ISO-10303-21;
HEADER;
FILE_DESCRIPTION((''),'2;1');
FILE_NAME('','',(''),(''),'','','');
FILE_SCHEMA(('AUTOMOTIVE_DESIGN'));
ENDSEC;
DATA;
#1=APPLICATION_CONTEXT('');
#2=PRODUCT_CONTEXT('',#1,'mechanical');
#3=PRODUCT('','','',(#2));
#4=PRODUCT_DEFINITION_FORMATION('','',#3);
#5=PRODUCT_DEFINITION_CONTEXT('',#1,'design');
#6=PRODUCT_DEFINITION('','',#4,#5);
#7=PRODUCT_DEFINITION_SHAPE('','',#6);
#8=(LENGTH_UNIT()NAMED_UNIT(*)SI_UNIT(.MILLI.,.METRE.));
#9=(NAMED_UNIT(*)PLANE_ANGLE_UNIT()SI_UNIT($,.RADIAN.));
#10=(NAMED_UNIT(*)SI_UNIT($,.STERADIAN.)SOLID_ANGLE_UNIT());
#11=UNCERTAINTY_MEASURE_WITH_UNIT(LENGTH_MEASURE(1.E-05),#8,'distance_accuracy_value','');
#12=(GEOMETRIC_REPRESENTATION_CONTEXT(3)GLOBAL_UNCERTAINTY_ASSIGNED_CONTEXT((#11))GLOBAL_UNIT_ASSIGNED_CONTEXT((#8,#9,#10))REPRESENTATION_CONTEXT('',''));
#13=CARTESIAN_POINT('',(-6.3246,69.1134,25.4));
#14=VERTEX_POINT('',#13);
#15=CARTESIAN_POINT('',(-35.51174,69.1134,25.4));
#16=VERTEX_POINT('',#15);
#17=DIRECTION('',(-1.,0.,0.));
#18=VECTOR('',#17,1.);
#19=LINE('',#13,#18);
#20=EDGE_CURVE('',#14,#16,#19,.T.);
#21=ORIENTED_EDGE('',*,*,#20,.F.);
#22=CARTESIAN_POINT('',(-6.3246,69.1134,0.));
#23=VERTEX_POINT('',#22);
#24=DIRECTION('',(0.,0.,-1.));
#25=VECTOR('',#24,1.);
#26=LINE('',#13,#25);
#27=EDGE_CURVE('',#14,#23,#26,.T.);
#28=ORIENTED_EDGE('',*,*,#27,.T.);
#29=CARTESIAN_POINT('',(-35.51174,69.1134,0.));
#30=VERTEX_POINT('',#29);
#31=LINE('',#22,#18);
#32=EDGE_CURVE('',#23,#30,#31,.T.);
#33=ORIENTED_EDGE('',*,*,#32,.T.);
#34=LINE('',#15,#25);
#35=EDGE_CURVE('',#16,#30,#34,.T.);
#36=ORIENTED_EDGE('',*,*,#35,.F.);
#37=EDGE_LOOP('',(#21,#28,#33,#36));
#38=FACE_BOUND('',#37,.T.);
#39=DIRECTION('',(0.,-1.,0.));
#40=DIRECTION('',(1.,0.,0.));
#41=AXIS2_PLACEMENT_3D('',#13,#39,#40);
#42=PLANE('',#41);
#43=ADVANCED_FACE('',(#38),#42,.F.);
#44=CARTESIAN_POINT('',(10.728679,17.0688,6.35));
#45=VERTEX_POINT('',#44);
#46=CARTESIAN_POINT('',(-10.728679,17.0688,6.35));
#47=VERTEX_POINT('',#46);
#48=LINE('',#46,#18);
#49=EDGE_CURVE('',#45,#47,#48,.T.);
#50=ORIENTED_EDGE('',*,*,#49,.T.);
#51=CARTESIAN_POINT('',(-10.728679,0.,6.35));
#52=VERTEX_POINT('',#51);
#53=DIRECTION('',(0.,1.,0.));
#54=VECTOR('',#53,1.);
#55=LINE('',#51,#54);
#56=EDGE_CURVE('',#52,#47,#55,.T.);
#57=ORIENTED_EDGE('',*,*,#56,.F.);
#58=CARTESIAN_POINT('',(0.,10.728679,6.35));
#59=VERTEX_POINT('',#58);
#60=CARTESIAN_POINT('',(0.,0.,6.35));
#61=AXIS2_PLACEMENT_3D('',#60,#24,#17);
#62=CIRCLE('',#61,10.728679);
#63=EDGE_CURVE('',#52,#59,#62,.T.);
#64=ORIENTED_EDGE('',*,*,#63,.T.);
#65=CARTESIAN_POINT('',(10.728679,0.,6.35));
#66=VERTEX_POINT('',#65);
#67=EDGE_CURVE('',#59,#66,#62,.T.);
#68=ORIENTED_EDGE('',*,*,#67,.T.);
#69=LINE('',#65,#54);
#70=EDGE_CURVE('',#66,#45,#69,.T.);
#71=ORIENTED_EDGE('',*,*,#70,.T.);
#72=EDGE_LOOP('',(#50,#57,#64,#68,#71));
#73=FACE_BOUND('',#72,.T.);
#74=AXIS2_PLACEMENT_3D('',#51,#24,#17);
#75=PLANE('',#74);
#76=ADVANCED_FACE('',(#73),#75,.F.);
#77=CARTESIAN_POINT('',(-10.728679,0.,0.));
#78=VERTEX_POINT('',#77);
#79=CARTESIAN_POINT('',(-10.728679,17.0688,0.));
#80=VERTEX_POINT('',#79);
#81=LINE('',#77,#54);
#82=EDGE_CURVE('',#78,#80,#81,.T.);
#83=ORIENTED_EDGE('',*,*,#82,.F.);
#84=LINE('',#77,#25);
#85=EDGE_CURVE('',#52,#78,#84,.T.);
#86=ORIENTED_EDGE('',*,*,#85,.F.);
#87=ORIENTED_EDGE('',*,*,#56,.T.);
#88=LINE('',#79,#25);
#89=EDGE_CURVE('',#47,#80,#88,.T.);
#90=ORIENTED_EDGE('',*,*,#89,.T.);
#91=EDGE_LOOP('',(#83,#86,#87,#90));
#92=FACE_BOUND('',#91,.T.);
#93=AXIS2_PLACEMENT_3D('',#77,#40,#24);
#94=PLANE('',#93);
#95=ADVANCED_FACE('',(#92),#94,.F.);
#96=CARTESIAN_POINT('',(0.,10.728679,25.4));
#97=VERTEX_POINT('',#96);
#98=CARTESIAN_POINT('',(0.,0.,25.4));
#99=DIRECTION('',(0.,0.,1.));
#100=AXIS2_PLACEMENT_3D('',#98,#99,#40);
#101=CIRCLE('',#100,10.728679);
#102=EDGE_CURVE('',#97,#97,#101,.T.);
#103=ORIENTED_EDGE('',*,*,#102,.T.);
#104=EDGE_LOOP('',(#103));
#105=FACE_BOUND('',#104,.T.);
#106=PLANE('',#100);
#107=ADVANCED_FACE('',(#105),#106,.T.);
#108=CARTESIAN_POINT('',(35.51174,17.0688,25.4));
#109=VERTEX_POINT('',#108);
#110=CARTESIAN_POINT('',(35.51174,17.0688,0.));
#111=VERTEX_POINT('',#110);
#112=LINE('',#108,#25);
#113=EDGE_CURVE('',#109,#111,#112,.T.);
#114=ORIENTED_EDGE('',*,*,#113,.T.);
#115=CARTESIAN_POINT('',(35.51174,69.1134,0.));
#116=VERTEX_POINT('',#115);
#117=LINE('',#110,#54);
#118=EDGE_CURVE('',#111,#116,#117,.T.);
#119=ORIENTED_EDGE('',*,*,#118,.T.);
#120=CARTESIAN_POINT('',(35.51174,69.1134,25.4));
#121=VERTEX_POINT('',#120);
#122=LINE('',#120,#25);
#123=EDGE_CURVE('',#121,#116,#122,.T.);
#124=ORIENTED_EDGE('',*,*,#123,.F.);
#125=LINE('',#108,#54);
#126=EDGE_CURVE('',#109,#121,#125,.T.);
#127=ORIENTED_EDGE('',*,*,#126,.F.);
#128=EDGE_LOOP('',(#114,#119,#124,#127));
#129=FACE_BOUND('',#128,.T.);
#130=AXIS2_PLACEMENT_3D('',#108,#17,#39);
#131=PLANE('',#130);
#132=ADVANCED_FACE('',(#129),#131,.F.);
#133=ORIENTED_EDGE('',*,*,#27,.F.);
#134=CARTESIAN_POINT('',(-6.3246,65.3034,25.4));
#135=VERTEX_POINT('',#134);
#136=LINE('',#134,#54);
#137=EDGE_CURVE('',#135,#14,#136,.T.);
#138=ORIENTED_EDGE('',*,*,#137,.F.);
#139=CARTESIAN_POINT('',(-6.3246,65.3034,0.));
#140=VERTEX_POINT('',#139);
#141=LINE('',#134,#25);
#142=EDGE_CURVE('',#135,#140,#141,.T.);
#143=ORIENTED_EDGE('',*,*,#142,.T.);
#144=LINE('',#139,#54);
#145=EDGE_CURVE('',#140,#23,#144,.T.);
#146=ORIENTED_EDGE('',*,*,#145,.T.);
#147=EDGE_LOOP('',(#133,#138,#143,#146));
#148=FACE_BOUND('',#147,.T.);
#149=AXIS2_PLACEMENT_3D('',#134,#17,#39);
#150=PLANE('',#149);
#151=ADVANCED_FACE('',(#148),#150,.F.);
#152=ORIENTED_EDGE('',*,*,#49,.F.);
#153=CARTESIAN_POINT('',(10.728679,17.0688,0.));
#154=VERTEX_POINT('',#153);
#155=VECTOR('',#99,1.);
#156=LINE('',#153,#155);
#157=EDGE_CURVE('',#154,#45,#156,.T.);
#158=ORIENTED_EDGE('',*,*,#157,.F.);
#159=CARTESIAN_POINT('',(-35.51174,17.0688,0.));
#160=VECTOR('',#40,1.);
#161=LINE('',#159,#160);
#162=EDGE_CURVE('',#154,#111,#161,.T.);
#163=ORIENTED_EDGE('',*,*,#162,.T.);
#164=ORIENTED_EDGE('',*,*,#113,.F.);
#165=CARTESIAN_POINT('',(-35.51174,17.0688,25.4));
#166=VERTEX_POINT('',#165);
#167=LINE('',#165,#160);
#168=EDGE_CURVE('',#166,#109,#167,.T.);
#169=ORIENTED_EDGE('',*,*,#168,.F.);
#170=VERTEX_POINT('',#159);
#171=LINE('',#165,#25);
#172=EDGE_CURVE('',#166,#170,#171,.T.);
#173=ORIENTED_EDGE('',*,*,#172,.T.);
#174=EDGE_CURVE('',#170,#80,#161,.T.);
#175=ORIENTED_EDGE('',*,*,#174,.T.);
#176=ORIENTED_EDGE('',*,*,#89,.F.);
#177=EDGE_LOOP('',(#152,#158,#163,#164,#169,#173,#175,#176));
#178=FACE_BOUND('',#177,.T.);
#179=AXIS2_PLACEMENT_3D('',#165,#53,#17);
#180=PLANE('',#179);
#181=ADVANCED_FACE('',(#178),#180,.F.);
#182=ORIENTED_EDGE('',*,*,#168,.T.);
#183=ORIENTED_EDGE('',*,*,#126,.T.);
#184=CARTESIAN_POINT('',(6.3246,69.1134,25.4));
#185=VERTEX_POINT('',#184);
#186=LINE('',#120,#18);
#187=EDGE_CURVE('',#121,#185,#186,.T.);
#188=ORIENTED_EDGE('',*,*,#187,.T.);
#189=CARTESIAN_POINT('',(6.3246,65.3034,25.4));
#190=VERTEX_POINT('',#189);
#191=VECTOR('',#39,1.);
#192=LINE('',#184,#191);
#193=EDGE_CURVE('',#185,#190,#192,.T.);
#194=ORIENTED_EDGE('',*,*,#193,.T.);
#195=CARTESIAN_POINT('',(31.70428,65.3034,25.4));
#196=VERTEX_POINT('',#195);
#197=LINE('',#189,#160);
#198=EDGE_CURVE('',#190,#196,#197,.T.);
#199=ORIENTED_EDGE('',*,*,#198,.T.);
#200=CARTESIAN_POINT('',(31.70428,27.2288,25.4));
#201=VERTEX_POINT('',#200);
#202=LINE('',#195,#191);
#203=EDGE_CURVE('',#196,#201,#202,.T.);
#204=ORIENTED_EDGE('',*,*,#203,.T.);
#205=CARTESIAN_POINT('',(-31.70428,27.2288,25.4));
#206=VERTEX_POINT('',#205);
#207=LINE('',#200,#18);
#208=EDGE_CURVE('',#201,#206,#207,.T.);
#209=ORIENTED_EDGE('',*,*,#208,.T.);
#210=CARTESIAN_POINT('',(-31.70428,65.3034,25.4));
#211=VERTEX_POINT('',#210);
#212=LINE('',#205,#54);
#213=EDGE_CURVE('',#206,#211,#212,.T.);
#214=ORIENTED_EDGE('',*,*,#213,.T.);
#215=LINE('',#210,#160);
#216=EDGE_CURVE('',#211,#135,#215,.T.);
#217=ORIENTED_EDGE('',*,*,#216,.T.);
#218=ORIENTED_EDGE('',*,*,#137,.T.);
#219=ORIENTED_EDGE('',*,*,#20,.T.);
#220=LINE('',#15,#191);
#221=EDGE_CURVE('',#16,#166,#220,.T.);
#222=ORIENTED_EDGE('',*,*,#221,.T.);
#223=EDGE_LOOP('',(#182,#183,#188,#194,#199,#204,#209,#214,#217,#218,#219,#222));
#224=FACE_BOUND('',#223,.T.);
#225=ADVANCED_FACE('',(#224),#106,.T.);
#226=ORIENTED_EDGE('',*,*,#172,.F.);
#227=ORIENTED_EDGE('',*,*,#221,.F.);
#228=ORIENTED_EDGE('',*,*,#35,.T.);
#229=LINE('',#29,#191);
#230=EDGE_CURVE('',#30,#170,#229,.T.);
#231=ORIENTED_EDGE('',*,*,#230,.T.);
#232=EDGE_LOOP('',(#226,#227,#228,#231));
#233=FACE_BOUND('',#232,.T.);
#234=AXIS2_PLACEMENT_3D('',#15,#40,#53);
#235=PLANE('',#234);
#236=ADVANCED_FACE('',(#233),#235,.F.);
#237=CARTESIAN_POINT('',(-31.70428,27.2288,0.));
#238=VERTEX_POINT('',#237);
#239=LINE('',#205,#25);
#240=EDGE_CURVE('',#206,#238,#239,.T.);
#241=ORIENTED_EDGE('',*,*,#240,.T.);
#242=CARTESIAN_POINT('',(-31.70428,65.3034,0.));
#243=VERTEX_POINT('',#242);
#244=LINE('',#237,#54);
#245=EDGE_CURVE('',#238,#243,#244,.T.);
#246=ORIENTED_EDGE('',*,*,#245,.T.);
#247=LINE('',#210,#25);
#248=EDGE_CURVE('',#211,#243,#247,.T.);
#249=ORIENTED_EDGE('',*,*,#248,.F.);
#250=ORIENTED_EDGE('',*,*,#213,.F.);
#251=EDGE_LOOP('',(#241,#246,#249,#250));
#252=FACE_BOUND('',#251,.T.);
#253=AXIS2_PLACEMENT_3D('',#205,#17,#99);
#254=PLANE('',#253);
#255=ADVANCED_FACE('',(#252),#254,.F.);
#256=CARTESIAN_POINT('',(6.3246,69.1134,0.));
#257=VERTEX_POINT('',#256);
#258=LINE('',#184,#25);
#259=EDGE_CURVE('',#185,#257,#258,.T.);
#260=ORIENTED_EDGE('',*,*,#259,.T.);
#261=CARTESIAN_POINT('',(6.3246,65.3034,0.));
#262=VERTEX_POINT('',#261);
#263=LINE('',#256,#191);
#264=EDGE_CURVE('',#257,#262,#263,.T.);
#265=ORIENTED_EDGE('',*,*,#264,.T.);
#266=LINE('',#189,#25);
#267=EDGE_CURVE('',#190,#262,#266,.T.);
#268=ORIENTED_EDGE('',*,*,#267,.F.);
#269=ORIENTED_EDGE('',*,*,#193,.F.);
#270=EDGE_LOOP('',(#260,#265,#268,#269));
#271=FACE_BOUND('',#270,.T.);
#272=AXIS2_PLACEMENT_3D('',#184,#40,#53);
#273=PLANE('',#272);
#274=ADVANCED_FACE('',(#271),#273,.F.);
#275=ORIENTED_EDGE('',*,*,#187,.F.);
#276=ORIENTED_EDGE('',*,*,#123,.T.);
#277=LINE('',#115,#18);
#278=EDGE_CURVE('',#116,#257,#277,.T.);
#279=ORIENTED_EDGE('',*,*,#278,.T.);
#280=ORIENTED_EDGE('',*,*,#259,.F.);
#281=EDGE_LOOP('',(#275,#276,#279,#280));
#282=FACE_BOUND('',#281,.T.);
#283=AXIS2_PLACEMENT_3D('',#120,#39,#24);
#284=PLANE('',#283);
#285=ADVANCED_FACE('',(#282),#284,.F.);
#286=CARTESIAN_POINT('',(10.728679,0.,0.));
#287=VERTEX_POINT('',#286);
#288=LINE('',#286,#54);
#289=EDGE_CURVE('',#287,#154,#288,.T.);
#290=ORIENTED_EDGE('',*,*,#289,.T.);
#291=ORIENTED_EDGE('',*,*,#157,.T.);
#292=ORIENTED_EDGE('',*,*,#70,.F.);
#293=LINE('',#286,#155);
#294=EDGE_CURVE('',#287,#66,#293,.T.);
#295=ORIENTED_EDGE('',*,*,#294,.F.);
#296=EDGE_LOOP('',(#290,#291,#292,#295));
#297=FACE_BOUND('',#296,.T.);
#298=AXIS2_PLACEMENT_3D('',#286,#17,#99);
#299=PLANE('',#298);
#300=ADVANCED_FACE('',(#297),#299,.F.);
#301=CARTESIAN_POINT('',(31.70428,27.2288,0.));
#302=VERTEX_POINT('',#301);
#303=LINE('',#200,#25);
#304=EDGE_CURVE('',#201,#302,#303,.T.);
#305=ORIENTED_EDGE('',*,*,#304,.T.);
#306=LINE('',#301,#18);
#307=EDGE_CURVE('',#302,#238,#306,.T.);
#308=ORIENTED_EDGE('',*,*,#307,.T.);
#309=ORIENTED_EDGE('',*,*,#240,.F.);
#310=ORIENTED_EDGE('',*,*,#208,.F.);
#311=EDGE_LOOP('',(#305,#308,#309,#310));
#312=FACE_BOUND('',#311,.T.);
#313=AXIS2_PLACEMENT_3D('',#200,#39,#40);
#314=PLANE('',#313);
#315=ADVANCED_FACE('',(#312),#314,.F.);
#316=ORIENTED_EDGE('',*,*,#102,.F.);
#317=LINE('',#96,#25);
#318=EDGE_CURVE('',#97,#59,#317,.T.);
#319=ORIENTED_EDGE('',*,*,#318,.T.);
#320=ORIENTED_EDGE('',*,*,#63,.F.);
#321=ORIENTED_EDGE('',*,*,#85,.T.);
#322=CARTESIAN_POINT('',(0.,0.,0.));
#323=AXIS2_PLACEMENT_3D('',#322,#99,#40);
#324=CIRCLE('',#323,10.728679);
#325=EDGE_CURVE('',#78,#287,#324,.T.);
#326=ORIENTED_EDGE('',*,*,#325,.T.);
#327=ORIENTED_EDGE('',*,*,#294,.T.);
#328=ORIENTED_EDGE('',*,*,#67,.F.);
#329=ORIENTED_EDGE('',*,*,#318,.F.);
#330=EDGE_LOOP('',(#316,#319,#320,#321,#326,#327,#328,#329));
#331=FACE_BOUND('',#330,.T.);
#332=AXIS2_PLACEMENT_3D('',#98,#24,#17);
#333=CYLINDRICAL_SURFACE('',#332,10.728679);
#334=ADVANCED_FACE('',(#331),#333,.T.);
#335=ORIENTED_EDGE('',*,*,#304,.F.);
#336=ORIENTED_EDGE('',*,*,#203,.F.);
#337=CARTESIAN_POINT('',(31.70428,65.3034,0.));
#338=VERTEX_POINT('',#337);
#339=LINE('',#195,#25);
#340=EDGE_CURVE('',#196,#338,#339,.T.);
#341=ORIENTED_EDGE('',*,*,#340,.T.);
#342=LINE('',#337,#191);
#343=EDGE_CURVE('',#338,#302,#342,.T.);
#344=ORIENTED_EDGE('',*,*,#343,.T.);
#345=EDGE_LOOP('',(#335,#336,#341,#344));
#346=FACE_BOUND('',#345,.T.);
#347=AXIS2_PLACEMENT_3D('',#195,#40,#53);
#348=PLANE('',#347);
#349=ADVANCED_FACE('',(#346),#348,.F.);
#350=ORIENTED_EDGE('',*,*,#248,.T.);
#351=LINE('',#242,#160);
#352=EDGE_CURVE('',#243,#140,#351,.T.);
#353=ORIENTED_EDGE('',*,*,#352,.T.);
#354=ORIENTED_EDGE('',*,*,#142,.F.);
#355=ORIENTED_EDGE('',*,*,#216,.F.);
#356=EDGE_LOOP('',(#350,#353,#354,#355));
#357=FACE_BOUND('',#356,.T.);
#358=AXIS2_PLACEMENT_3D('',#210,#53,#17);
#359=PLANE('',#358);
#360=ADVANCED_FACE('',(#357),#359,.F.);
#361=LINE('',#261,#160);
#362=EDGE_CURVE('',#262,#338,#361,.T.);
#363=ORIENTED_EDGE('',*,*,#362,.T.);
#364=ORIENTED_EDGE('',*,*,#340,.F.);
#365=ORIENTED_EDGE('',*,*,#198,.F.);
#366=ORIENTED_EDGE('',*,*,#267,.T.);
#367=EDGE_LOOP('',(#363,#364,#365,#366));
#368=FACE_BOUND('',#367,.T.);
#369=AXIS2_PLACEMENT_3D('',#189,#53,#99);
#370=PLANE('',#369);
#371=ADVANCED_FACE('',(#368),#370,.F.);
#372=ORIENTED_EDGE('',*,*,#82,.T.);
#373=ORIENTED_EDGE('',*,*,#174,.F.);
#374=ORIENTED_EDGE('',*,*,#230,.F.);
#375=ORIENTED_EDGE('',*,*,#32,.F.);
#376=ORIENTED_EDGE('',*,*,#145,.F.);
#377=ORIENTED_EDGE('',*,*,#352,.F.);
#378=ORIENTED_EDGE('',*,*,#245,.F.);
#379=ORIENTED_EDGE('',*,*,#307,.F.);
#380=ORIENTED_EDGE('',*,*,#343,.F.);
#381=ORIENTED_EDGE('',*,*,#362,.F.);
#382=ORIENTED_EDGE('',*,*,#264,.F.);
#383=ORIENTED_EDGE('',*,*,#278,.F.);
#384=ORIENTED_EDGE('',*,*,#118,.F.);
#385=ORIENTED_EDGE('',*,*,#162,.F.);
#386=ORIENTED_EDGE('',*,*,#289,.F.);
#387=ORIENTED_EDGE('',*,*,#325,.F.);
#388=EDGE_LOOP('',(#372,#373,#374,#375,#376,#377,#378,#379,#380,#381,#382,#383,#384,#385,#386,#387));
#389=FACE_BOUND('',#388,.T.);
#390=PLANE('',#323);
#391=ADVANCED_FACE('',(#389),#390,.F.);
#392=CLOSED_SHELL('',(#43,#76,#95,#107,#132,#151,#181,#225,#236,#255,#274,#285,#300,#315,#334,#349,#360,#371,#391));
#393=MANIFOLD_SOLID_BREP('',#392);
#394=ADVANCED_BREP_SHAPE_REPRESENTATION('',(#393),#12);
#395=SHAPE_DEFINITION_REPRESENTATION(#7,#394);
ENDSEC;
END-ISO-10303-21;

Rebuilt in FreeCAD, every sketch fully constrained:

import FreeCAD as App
import Part
import Sketcher
from FreeCAD import Vector
Q = App.Units.Quantity

doc = App.newDocument("Part")
body = doc.addObject("PartDesign::Body", "Body")

# Sketch on XY plane
sketch1 = doc.addObject("Sketcher::SketchObject", "Sketch")
body.addObject(sketch1)
sketch1.AttachmentSupport = (doc.XY_Plane, [""])
sketch1.MapMode = "FlatFace"
sketch1.addGeometry(Part.Circle(Vector(0, 0, 0), Vector(0, 0, 1), 10.728679), False)
sketch1.addConstraint([
    Sketcher.Constraint("Coincident", 0, 3, -1, 1),
    Sketcher.Constraint("Diameter", 0, Q("21.457358 mm")),
])
pad1 = doc.addObject("PartDesign::Pad", "Pad")
body.addObject(pad1)
pad1.Profile = sketch1
pad1.Length = Q("1 in")
body2 = doc.addObject("PartDesign::Body", "Body001")

# Sketch on XY plane
sketch2 = doc.addObject("Sketcher::SketchObject", "Sketch001")
body2.addObject(sketch2)
sketch2.AttachmentSupport = (doc.getObject("XY_Plane001"), [""])
sketch2.MapMode = "FlatFace"
sketch2.addGeometry([
    Part.LineSegment(Vector(-35.51174, 17.0688, 0), Vector(35.51174, 17.0688, 0)),  # 0
    Part.LineSegment(Vector(35.51174, 17.0688, 0), Vector(35.51174, 69.1134, 0)),  # 1
    Part.LineSegment(Vector(35.51174, 69.1134, 0), Vector(6.3246, 69.1134, 0)),  # 2
    Part.LineSegment(Vector(6.3246, 69.1134, 0), Vector(6.3246, 65.3034, 0)),  # 3
    Part.LineSegment(Vector(6.3246, 65.3034, 0), Vector(31.70428, 65.3034, 0)),  # 4
    Part.LineSegment(Vector(31.70428, 65.3034, 0), Vector(31.70428, 27.2288, 0)),  # 5
    Part.LineSegment(Vector(31.70428, 27.2288, 0), Vector(-31.70428, 27.2288, 0)),  # 6
    Part.LineSegment(Vector(-31.70428, 27.2288, 0), Vector(-31.70428, 65.3034, 0)),  # 7
    Part.LineSegment(Vector(-31.70428, 65.3034, 0), Vector(-6.3246, 65.3034, 0)),  # 8
    Part.LineSegment(Vector(-6.3246, 65.3034, 0), Vector(-6.3246, 69.1134, 0)),  # 9
    Part.LineSegment(Vector(-6.3246, 69.1134, 0), Vector(-35.51174, 69.1134, 0)),  # 10
    Part.LineSegment(Vector(-35.51174, 69.1134, 0), Vector(-35.51174, 17.0688, 0)),  # 11
], False)
sketch2.addConstraint([
    Sketcher.Constraint("Coincident", 0, 2, 1, 1),
    Sketcher.Constraint("Coincident", 1, 2, 2, 1),
    Sketcher.Constraint("Coincident", 2, 2, 3, 1),
    Sketcher.Constraint("Coincident", 3, 2, 4, 1),
    Sketcher.Constraint("Coincident", 4, 2, 5, 1),
    Sketcher.Constraint("Coincident", 5, 2, 6, 1),
    Sketcher.Constraint("Coincident", 6, 2, 7, 1),
    Sketcher.Constraint("Coincident", 7, 2, 8, 1),
    Sketcher.Constraint("Coincident", 8, 2, 9, 1),
    Sketcher.Constraint("Coincident", 9, 2, 10, 1),
    Sketcher.Constraint("Coincident", 10, 2, 11, 1),
    Sketcher.Constraint("Coincident", 11, 2, 0, 1),
    Sketcher.Constraint("Horizontal", 0),
    Sketcher.Constraint("Vertical", 1),
    Sketcher.Constraint("Horizontal", 2),
    Sketcher.Constraint("Vertical", 3),
    Sketcher.Constraint("Horizontal", 4),
    Sketcher.Constraint("Vertical", 5),
    Sketcher.Constraint("Horizontal", 6),
    Sketcher.Constraint("Vertical", 7),
    Sketcher.Constraint("Horizontal", 8),
    Sketcher.Constraint("Vertical", 9),
    Sketcher.Constraint("Horizontal", 10),
    Sketcher.Constraint("Vertical", 11),
    Sketcher.Constraint("Symmetric", 4, 2, 7, 2, -2),
    Sketcher.Constraint("Symmetric", 2, 2, 9, 2, -2),
    Sketcher.Constraint("Equal", 2, 10),
    Sketcher.Constraint("DistanceY", 3, 2, 3, 1, Q("0.15 in")),
    Sketcher.Constraint("DistanceY", 0, 2, 5, 2, Q("0.4 in")),
    Sketcher.Constraint("DistanceY", 1, 1, 1, 2, Q("2.049 in")),
    Sketcher.Constraint("DistanceX", 0, 1, 0, 2, Q("2.7962 in")),
    Sketcher.Constraint("DistanceX", 2, 2, 2, 1, Q("1.1491 in")),
    Sketcher.Constraint("DistanceX", 4, 1, 4, 2, Q("0.9992 in")),
    Sketcher.Constraint("DistanceY", -1, 1, 0, 2, Q("0.672 in")),
])
pad2 = doc.addObject("PartDesign::Pad", "Pad001")
body2.addObject(pad2)
pad2.Profile = sketch2
pad2.Length = Q("1 in")
body.AllowCompound = True
doc.recompute()

boolean = doc.addObject("PartDesign::Boolean", "Boolean")
body.addObject(boolean)
boolean.Type = "Fuse"
boolean.addObjects([body2])

# Sketch on XZ plane
sketch3 = doc.addObject("Sketcher::SketchObject", "Sketch002")
body.addObject(sketch3)
sketch3.AttachmentSupport = (doc.XZ_Plane, [""])
sketch3.MapMode = "FlatFace"
sketch3.AttachmentOffset = App.Placement(Vector(0, 0, -0.672 * 25.4), App.Rotation())
sketch3.addGeometry([
    Part.LineSegment(Vector(-10.728679, 6.35, 0), Vector(-10.728679, 0, 0)),
    Part.LineSegment(Vector(-10.728679, 0, 0), Vector(10.728679, 0, 0)),
    Part.LineSegment(Vector(10.728679, 0, 0), Vector(10.728679, 6.35, 0)),
    Part.LineSegment(Vector(10.728679, 6.35, 0), Vector(-10.728679, 6.35, 0)),
], False)
sketch3.addConstraint([
    Sketcher.Constraint("Coincident", 0, 2, 1, 1),
    Sketcher.Constraint("Coincident", 1, 2, 2, 1),
    Sketcher.Constraint("Coincident", 2, 2, 3, 1),
    Sketcher.Constraint("Coincident", 3, 2, 0, 1),
    Sketcher.Constraint("Vertical", 0),
    Sketcher.Constraint("Horizontal", 1),
    Sketcher.Constraint("Vertical", 2),
    Sketcher.Constraint("Horizontal", 3),
    Sketcher.Constraint("Symmetric", 0, 2, 1, 2, -1, 1),
    Sketcher.Constraint("DistanceY", 0, 2, 0, 1, Q("0.25 in")),
    Sketcher.Constraint("DistanceX", 1, 1, 1, 2, Q("21.457358 mm")),
])
pad3 = doc.addObject("PartDesign::Pad", "Pad002")
body.addObject(pad3)
pad3.Profile = sketch3
pad3.Length = Q("0.672 in")

doc.recompute()
